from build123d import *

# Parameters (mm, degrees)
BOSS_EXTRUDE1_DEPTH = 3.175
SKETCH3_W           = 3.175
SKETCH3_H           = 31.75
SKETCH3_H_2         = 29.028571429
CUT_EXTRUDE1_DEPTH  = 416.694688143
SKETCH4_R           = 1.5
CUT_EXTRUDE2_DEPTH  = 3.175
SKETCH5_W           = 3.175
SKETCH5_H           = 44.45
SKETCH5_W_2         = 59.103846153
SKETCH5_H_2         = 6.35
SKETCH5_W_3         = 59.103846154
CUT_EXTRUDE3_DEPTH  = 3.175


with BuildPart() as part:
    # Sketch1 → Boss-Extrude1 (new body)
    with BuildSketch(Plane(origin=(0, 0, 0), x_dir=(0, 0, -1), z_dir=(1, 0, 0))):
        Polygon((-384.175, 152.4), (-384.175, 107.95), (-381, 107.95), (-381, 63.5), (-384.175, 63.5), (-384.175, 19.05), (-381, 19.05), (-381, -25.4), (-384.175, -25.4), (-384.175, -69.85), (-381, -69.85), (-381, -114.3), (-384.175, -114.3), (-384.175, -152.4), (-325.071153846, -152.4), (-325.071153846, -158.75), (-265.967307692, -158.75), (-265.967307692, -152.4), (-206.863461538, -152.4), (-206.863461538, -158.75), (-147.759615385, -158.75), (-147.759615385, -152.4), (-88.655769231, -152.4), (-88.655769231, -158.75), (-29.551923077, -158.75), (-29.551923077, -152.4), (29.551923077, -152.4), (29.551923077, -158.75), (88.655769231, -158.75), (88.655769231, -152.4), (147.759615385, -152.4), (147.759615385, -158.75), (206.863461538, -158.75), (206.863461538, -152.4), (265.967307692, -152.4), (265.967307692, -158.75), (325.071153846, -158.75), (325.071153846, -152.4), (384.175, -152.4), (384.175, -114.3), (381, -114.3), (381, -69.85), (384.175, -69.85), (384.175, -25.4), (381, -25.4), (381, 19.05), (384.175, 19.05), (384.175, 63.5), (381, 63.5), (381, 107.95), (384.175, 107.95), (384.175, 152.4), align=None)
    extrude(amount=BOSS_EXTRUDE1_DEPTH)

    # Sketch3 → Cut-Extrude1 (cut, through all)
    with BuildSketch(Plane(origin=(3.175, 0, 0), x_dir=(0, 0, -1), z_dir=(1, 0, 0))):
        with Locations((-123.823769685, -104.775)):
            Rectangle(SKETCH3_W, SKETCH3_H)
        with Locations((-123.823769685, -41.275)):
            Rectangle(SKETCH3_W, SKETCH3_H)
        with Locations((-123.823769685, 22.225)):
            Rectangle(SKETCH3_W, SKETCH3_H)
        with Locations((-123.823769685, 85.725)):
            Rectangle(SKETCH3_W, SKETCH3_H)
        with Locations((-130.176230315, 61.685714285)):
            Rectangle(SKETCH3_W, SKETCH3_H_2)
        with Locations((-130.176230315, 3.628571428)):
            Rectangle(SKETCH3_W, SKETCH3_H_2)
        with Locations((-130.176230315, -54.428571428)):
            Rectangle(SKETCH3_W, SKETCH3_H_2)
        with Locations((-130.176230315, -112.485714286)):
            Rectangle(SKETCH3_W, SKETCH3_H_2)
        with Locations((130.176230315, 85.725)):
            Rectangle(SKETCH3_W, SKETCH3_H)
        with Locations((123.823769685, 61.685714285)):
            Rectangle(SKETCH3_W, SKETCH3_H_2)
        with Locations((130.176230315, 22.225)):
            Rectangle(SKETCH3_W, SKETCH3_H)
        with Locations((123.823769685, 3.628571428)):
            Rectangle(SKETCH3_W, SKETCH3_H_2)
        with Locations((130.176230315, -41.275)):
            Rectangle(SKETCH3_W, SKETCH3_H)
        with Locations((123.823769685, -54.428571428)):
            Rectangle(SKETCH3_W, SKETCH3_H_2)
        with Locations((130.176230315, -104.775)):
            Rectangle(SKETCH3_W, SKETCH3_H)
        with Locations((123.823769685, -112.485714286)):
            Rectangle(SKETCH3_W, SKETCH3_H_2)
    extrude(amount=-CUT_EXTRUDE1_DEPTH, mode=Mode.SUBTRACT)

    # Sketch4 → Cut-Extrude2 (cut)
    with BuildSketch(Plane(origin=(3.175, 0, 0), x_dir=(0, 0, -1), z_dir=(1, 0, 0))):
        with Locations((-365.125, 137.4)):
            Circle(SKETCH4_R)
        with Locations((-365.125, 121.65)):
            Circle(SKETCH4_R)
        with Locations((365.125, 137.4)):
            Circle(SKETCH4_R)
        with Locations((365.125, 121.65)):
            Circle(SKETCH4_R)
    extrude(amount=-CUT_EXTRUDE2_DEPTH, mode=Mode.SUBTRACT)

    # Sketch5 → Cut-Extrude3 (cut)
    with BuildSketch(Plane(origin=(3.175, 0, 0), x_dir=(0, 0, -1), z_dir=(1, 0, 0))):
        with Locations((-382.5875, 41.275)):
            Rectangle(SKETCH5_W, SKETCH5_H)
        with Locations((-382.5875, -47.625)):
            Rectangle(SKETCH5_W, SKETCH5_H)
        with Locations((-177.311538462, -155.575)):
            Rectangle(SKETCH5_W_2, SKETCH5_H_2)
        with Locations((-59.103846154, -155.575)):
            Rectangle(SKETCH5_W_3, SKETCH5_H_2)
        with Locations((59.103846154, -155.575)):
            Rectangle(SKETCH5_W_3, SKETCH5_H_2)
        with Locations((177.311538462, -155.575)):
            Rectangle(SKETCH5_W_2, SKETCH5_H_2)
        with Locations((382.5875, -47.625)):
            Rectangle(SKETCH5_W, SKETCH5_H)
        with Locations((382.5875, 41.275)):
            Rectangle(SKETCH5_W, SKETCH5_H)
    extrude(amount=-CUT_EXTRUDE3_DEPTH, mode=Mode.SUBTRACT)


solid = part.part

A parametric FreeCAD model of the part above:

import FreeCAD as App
import Part
import Sketcher
from FreeCAD import Vector
Q = App.Units.Quantity

doc = App.newDocument("Part")
body = doc.addObject("PartDesign::Body", "Body")

sketch1 = doc.addObject("Sketcher::SketchObject", "Sketch")
body.addObject(sketch1)
sketch1.AttachmentSupport = (doc.YZ_Plane, [""])
sketch1.MapMode = "FlatFace"
sketch1.addGeometry([
    Part.LineSegment(Vector(152.4, 384.175, 0), Vector(107.95, 384.175, 0)),
    Part.LineSegment(Vector(107.95, 384.175, 0), Vector(107.95, 381, 0)),
    Part.LineSegment(Vector(107.95, 381, 0), Vector(63.5, 381, 0)),
    Part.LineSegment(Vector(63.5, 381, 0), Vector(63.5, 384.175, 0)),
    Part.LineSegment(Vector(63.5, 384.175, 0), Vector(19.05, 384.175, 0)),
    Part.LineSegment(Vector(19.05, 384.175, 0), Vector(19.05, 381, 0)),
    Part.LineSegment(Vector(19.05, 381, 0), Vector(-25.4, 381, 0)),
    Part.LineSegment(Vector(-25.4, 381, 0), Vector(-25.4, 384.175, 0)),
    Part.LineSegment(Vector(-25.4, 384.175, 0), Vector(-69.85, 384.175, 0)),
    Part.LineSegment(Vector(-69.85, 384.175, 0), Vector(-69.85, 381, 0)),
    Part.LineSegment(Vector(-69.85, 381, 0), Vector(-114.3, 381, 0)),
    Part.LineSegment(Vector(-114.3, 381, 0), Vector(-114.3, 384.175, 0)),
    Part.LineSegment(Vector(-114.3, 384.175, 0), Vector(-152.4, 384.175, 0)),
    Part.LineSegment(Vector(-152.4, 384.175, 0), Vector(-152.4, 325.071154, 0)),
    Part.LineSegment(Vector(-152.4, 325.071154, 0), Vector(-158.75, 325.071154, 0)),
    Part.LineSegment(Vector(-158.75, 325.071154, 0), Vector(-158.75, 265.967308, 0)),
    Part.LineSegment(Vector(-158.75, 265.967308, 0), Vector(-152.4, 265.967308, 0)),
    Part.LineSegment(Vector(-152.4, 265.967308, 0), Vector(-152.4, 206.863462, 0)),
    Part.LineSegment(Vector(-152.4, 206.863462, 0), Vector(-158.75, 206.863462, 0)),
    Part.LineSegment(Vector(-158.75, 206.863462, 0), Vector(-158.75, 147.759615, 0)),
    Part.LineSegment(Vector(-158.75, 147.759615, 0), Vector(-152.4, 147.759615, 0)),
    Part.LineSegment(Vector(-152.4, 147.759615, 0), Vector(-152.4, 88.655769, 0)),
    Part.LineSegment(Vector(-152.4, 88.655769, 0), Vector(-158.75, 88.655769, 0)),
    Part.LineSegment(Vector(-158.75, 88.655769, 0), Vector(-158.75, 29.551923, 0)),
    Part.LineSegment(Vector(-158.75, 29.551923, 0), Vector(-152.4, 29.551923, 0)),
    Part.LineSegment(Vector(-152.4, 29.551923, 0), Vector(-152.4, -29.551923, 0)),
    Part.LineSegment(Vector(-152.4, -29.551923, 0), Vector(-158.75, -29.551923, 0)),
    Part.LineSegment(Vector(-158.75, -29.551923, 0), Vector(-158.75, -88.655769, 0)),
    Part.LineSegment(Vector(-158.75, -88.655769, 0), Vector(-152.4, -88.655769, 0)),
    Part.LineSegment(Vector(-152.4, -88.655769, 0), Vector(-152.4, -147.759615, 0)),
    Part.LineSegment(Vector(-152.4, -147.759615, 0), Vector(-158.75, -147.759615, 0)),
    Part.LineSegment(Vector(-158.75, -147.759615, 0), Vector(-158.75, -206.863462, 0)),
    Part.LineSegment(Vector(-158.75, -206.863462, 0), Vector(-152.4, -206.863462, 0)),
    Part.LineSegment(Vector(-152.4, -206.863462, 0), Vector(-152.4, -265.967308, 0)),
    Part.LineSegment(Vector(-152.4, -265.967308, 0), Vector(-158.75, -265.967308, 0)),
    Part.LineSegment(Vector(-158.75, -265.967308, 0), Vector(-158.75, -325.071154, 0)),
    Part.LineSegment(Vector(-158.75, -325.071154, 0), Vector(-152.4, -325.071154, 0)),
    Part.LineSegment(Vector(-152.4, -325.071154, 0), Vector(-152.4, -384.175, 0)),
    Part.LineSegment(Vector(-152.4, -384.175, 0), Vector(-114.3, -384.175, 0)),
    Part.LineSegment(Vector(-114.3, -384.175, 0), Vector(-114.3, -381, 0)),
    Part.LineSegment(Vector(-114.3, -381, 0), Vector(-69.85, -381, 0)),
    Part.LineSegment(Vector(-69.85, -381, 0), Vector(-69.85, -384.175, 0)),
    Part.LineSegment(Vector(-69.85, -384.175, 0), Vector(-25.4, -384.175, 0)),
    Part.LineSegment(Vector(-25.4, -384.175, 0), Vector(-25.4, -381, 0)),
    Part.LineSegment(Vector(-25.4, -381, 0), Vector(19.05, -381, 0)),
    Part.LineSegment(Vector(19.05, -381, 0), Vector(19.05, -384.175, 0)),
    Part.LineSegment(Vector(19.05, -384.175, 0), Vector(63.5, -384.175, 0)),
    Part.LineSegment(Vector(63.5, -384.175, 0), Vector(63.5, -381, 0)),
    Part.LineSegment(Vector(63.5, -381, 0), Vector(107.95, -381, 0)),
    Part.LineSegment(Vector(107.95, -381, 0), Vector(107.95, -384.175, 0)),
    Part.LineSegment(Vector(107.95, -384.175, 0), Vector(152.4, -384.175, 0)),
    Part.LineSegment(Vector(152.4, -384.175, 0), Vector(152.4, 384.175, 0)),
], False)
sketch1.addConstraint([
    Sketcher.Constraint("Coincident", 0, 2, 1, 1),
    Sketcher.Constraint("Coincident", 1, 2, 2, 1),
    Sketcher.Constraint("Coincident", 2, 2, 3, 1),
    Sketcher.Constraint("Coincident", 3, 2, 4, 1),
    Sketcher.Constraint("Coincident", 4, 2, 5, 1),
    Sketcher.Constraint("Coincident", 5, 2, 6, 1),
    Sketcher.Constraint("Coincident", 6, 2, 7, 1),
    Sketcher.Constraint("Coincident", 7, 2, 8, 1),
    Sketcher.Constraint("Coincident", 8, 2, 9, 1),
    Sketcher.Constraint("Coincident", 9, 2, 10, 1),
    Sketcher.Constraint("Coincident", 10, 2, 11, 1),
    Sketcher.Constraint("Coincident", 11, 2, 12, 1),
    Sketcher.Constraint("Coincident", 12, 2, 13, 1),
    Sketcher.Constraint("Coincident", 13, 2, 14, 1),
    Sketcher.Constraint("Coincident", 14, 2, 15, 1),
    Sketcher.Constraint("Coincident", 15, 2, 16, 1),
    Sketcher.Constraint("Coincident", 16, 2, 17, 1),
    Sketcher.Constraint("Coincident", 17, 2, 18, 1),
    Sketcher.Constraint("Coincident", 18, 2, 19, 1),
    Sketcher.Constraint("Coincident", 19, 2, 20, 1),
    Sketcher.Constraint("Coincident", 20, 2, 21, 1),
    Sketcher.Constraint("Coincident", 21, 2, 22, 1),
    Sketcher.Constraint("Coincident", 22, 2, 23, 1),
    Sketcher.Constraint("Coincident", 23, 2, 24, 1),
    Sketcher.Constraint("Coincident", 24, 2, 25, 1),
    Sketcher.Constraint("Coincident", 25, 2, 26, 1),
    Sketcher.Constraint("Coincident", 26, 2, 27, 1),
    Sketcher.Constraint("Coincident", 27, 2, 28, 1),
    Sketcher.Constraint("Coincident", 28, 2, 29, 1),
    Sketcher.Constraint("Coincident", 29, 2, 30, 1),
    Sketcher.Constraint("Coincident", 30, 2, 31, 1),
    Sketcher.Constraint("Coincident", 31, 2, 32, 1),
    Sketcher.Constraint("Coincident", 32, 2, 33, 1),
    Sketcher.Constraint("Coincident", 33, 2, 34, 1),
    Sketcher.Constraint("Coincident", 34, 2, 35, 1),
    Sketcher.Constraint("Coincident", 35, 2, 36, 1),
    Sketcher.Constraint("Coincident", 36, 2, 37, 1),
    Sketcher.Constraint("Coincident", 37, 2, 38, 1),
    Sketcher.Constraint("Coincident", 38, 2, 39, 1),
    Sketcher.Constraint("Coincident", 39, 2, 40, 1),
    Sketcher.Constraint("Coincident", 40, 2, 41, 1),
    Sketcher.Constraint("Coincident", 41, 2, 42, 1),
    Sketcher.Constraint("Coincident", 42, 2, 43, 1),
    Sketcher.Constraint("Coincident", 43, 2, 44, 1),
    Sketcher.Constraint("Coincident", 44, 2, 45, 1),
    Sketcher.Constraint("Coincident", 45, 2, 46, 1),
    Sketcher.Constraint("Coincident", 46, 2, 47, 1),
    Sketcher.Constraint("Coincident", 47, 2, 48, 1),
    Sketcher.Constraint("Coincident", 48, 2, 49, 1),
    Sketcher.Constraint("Coincident", 49, 2, 50, 1),
    Sketcher.Constraint("Coincident", 50, 2, 51, 1),
    Sketcher.Constraint("Coincident", 51, 2, 0, 1),
    Sketcher.Constraint("Horizontal", 0),
    Sketcher.Constraint("Vertical", 1),
    Sketcher.Constraint("Horizontal", 2),
    Sketcher.Constraint("Vertical", 3),
    Sketcher.Constraint("Horizontal", 4),
    Sketcher.Constraint("Vertical", 5),
    Sketcher.Constraint("Horizontal", 6),
    Sketcher.Constraint("Vertical", 7),
    Sketcher.Constraint("Horizontal", 8),
    Sketcher.Constraint("Vertical", 9),
    Sketcher.Constraint("Horizontal", 10),
    Sketcher.Constraint("Vertical", 11),
    Sketcher.Constraint("Horizontal", 12),
    Sketcher.Constraint("Vertical", 13),
    Sketcher.Constraint("Horizontal", 14),
    Sketcher.Constraint("Vertical", 15),
    Sketcher.Constraint("Horizontal", 16),
    Sketcher.Constraint("Vertical", 17),
    Sketcher.Constraint("Horizontal", 18),
    Sketcher.Constraint("Vertical", 19),
    Sketcher.Constraint("Horizontal", 20),
    Sketcher.Constraint("Vertical", 21),
    Sketcher.Constraint("Horizontal", 22),
    Sketcher.Constraint("Vertical", 23),
    Sketcher.Constraint("Horizontal", 24),
    Sketcher.Constraint("Vertical", 25),
    Sketcher.Constraint("Horizontal", 26),
    Sketcher.Constraint("Vertical", 27),
    Sketcher.Constraint("Horizontal", 28),
    Sketcher.Constraint("Vertical", 29),
    Sketcher.Constraint("Horizontal", 30),
    Sketcher.Constraint("Vertical", 31),
    Sketcher.Constraint("Horizontal", 32),
    Sketcher.Constraint("Vertical", 33),
    Sketcher.Constraint("Horizontal", 34),
    Sketcher.Constraint("Vertical", 35),
    Sketcher.Constraint("Horizontal", 36),
    Sketcher.Constraint("Vertical", 37),
    Sketcher.Constraint("Horizontal", 38),
    Sketcher.Constraint("Vertical", 39),
    Sketcher.Constraint("Horizontal", 40),
    Sketcher.Constraint("Vertical", 41),
    Sketcher.Constraint("Horizontal", 42),
    Sketcher.Constraint("Vertical", 43),
    Sketcher.Constraint("Horizontal", 44),
    Sketcher.Constraint("Vertical", 45),
    Sketcher.Constraint("Horizontal", 46),
    Sketcher.Constraint("Vertical", 47),
    Sketcher.Constraint("Horizontal", 48),
    Sketcher.Constraint("Vertical", 49),
    Sketcher.Constraint("Horizontal", 50),
    Sketcher.Constraint("Vertical", 51),
    Sketcher.Constraint("Symmetric", 12, 2, 50, 2, -1, 1),
    Sketcher.Constraint("Symmetric", 37, 2, 51, 2, -1, 1),
    Sketcher.Constraint("Symmetric", 23, 2, 26, 2, -1),
    Sketcher.Constraint("Symmetric", 21, 2, 28, 2, -1),
    Sketcher.Constraint("Symmetric", 19, 2, 30, 2, -1),
    Sketcher.Constraint("Symmetric", 17, 2, 32, 2, -1),
    Sketcher.Constraint("Symmetric", 15, 2, 34, 2, -1),
    Sketcher.Constraint("Symmetric", 11, 2, 38, 2, -1),
    Sketcher.Constraint("Symmetric", 9, 2, 40, 2, -1),
    Sketcher.Constraint("Symmetric", 7, 2, 42, 2, -1),
    Sketcher.Constraint("Symmetric", 5, 2, 44, 2, -1),
    Sketcher.Constraint("Symmetric", 3, 2, 46, 2, -1),
    Sketcher.Constraint("Symmetric", 1, 2, 48, 2, -1),
    Sketcher.Constraint("Horizontal", 0, 2, 3, 2),
    Sketcher.Constraint("Horizontal", 2, 2, 5, 2),
    Sketcher.Constraint("Horizontal", 4, 2, 7, 2),
    Sketcher.Constraint("Horizontal", 6, 2, 9, 2),
    Sketcher.Constraint("Vertical", 13, 2, 16, 2),
    Sketcher.Constraint("Vertical", 15, 2, 18, 2),
    Sketcher.Constraint("Vertical", 17, 2, 20, 2),
    Sketcher.Constraint("Vertical", 19, 2, 22, 2),
    Sketcher.Constraint("Vertical", 21, 2, 24, 2),
    Sketcher.Constraint("Equal", 0, 2),
    Sketcher.Constraint("Equal", 2, 4),
    Sketcher.Constraint("Equal", 4, 6),
    Sketcher.Constraint("Equal", 6, 8),
    Sketcher.Constraint("Equal", 8, 10),
    Sketcher.Constraint("Equal", 13, 15),
    Sketcher.Constraint("Equal", 15, 17),
    Sketcher.Constraint("Equal", 17, 19),
    Sketcher.Constraint("Equal", 19, 21),
    Sketcher.Constraint("Equal", 21, 23),
    Sketcher.Constraint("Equal", 23, 25),
    Sketcher.Constraint("Equal", 33, 35),
    Sketcher.Constraint("DistanceX", 12, 2, 12, 1, Q("1.5 in")),
    Sketcher.Constraint("DistanceY", -1, 1, 1, 2, Q("15 in")),
    Sketcher.Constraint("DistanceX", 6, 2, -1, 1, Q("1 in")),
    Sketcher.Constraint("DistanceX", 14, 2, 14, 1, Q("0.25 in")),
    Sketcher.Constraint("DistanceY", 51, 1, 51, 2, Q("30.25 in")),
])
pad1 = doc.addObject("PartDesign::Pad", "Pad")
body.addObject(pad1)
pad1.Profile = sketch1
pad1.Length = Q("0.125 in")

sketch2 = doc.addObject("Sketcher::SketchObject", "Sketch001")
body.addObject(sketch2)
sketch2.AttachmentSupport = (doc.YZ_Plane, [""])
sketch2.MapMode = "FlatFace"
sketch2.AttachmentOffset = App.Placement(Vector(0, 0, 0.125 * 25.4), App.Rotation())
sketch2.addGeometry([
    Part.LineSegment(Vector(-88.9, 125.41127, 0), Vector(-120.65, 125.41127, 0)),
    Part.LineSegment(Vector(-120.65, 125.41127, 0), Vector(-120.65, 122.23627, 0)),
    Part.LineSegment(Vector(-120.65, 122.23627, 0), Vector(-88.9, 122.23627, 0)),
    Part.LineSegment(Vector(-88.9, 122.23627, 0), Vector(-88.9, 125.41127, 0)),
    Part.LineSegment(Vector(-25.4, 125.41127, 0), Vector(-57.15, 125.41127, 0)),
    Part.LineSegment(Vector(-57.15, 125.41127, 0), Vector(-57.15, 122.23627, 0)),
    Part.LineSegment(Vector(-57.15, 122.23627, 0), Vector(-25.4, 122.23627, 0)),
    Part.LineSegment(Vector(-25.4, 122.23627, 0), Vector(-25.4, 125.41127, 0)),
    Part.LineSegment(Vector(38.1, 125.41127, 0), Vector(6.35, 125.41127, 0)),
    Part.LineSegment(Vector(6.35, 125.41127, 0), Vector(6.35, 122.23627, 0)),
    Part.LineSegment(Vector(6.35, 122.23627, 0), Vector(38.1, 122.23627, 0)),
    Part.LineSegment(Vector(38.1, 122.23627, 0), Vector(38.1, 125.41127, 0)),
    Part.LineSegment(Vector(101.6, 125.41127, 0), Vector(69.85, 125.41127, 0)),
    Part.LineSegment(Vector(69.85, 125.41127, 0), Vector(69.85, 122.23627, 0)),
    Part.LineSegment(Vector(69.85, 122.23627, 0), Vector(101.6, 122.23627, 0)),
    Part.LineSegment(Vector(101.6, 122.23627, 0), Vector(101.6, 125.41127, 0)),
    Part.LineSegment(Vector(76.2, 131.76373, 0), Vector(47.171429, 131.76373, 0)),
    Part.LineSegment(Vector(47.171429, 131.76373, 0), Vector(47.171429, 128.58873, 0)),
    Part.LineSegment(Vector(47.171429, 128.58873, 0), Vector(76.2, 128.58873, 0)),
    Part.LineSegment(Vector(76.2, 128.58873, 0), Vector(76.2, 131.76373, 0)),
    Part.LineSegment(Vector(18.142857, 131.76373, 0), Vector(-10.885714, 131.76373, 0)),
    Part.LineSegment(Vector(-10.885714, 131.76373, 0), Vector(-10.885714, 128.58873, 0)),
    Part.LineSegment(Vector(-10.885714, 128.58873, 0), Vector(18.142857, 128.58873, 0)),
    Part.LineSegment(Vector(18.142857, 128.58873, 0), Vector(18.142857, 131.76373, 0)),
    Part.LineSegment(Vector(-39.914286, 131.76373, 0), Vector(-68.942857, 131.76373, 0)),
    Part.LineSegment(Vector(-68.942857, 131.76373, 0), Vector(-68.942857, 128.58873, 0)),
    Part.LineSegment(Vector(-68.942857, 128.58873, 0), Vector(-39.914286, 128.58873, 0)),
    Part.LineSegment(Vector(-39.914286, 128.58873, 0), Vector(-39.914286, 131.76373, 0)),
    Part.LineSegment(Vector(-97.971429, 131.76373, 0), Vector(-127, 131.76373, 0)),
    Part.LineSegment(Vector(-127, 131.76373, 0), Vector(-127, 128.58873, 0)),
    Part.LineSegment(Vector(-127, 128.58873, 0), Vector(-97.971429, 128.58873, 0)),
    Part.LineSegment(Vector(-97.971429, 128.58873, 0), Vector(-97.971429, 131.76373, 0)),
    Part.LineSegment(Vector(101.6, -128.58873, 0), Vector(69.85, -128.58873, 0)),
    Part.LineSegment(Vector(69.85, -128.58873, 0), Vector(69.85, -131.76373, 0)),
    Part.LineSegment(Vector(69.85, -131.76373, 0), Vector(101.6, -131.76373, 0)),
    Part.LineSegment(Vector(101.6, -131.76373, 0), Vector(101.6, -128.58873, 0)),
    Part.LineSegment(Vector(76.2, -122.23627, 0), Vector(47.171429, -122.23627, 0)),
    Part.LineSegment(Vector(47.171429, -122.23627, 0), Vector(47.171429, -125.41127, 0)),
    Part.LineSegment(Vector(47.171429, -125.41127, 0), Vector(76.2, -125.41127, 0)),
    Part.LineSegment(Vector(76.2, -125.41127, 0), Vector(76.2, -122.23627, 0)),
    Part.LineSegment(Vector(38.1, -128.58873, 0), Vector(6.35, -128.58873, 0)),
    Part.LineSegment(Vector(6.35, -128.58873, 0), Vector(6.35, -131.76373, 0)),
    Part.LineSegment(Vector(6.35, -131.76373, 0), Vector(38.1, -131.76373, 0)),
    Part.LineSegment(Vector(38.1, -131.76373, 0), Vector(38.1, -128.58873, 0)),
    Part.LineSegment(Vector(18.142857, -122.23627, 0), Vector(-10.885714, -122.23627, 0)),
    Part.LineSegment(Vector(-10.885714, -122.23627, 0), Vector(-10.885714, -125.41127, 0)),
    Part.LineSegment(Vector(-10.885714, -125.41127, 0), Vector(18.142857, -125.41127, 0)),
    Part.LineSegment(Vector(18.142857, -125.41127, 0), Vector(18.142857, -122.23627, 0)),
    Part.LineSegment(Vector(-25.4, -128.58873, 0), Vector(-57.15, -128.58873, 0)),
    Part.LineSegment(Vector(-57.15, -128.58873, 0), Vector(-57.15, -131.76373, 0)),
    Part.LineSegment(Vector(-57.15, -131.76373, 0), Vector(-25.4, -131.76373, 0)),
    Part.LineSegment(Vector(-25.4, -131.76373, 0), Vector(-25.4, -128.58873, 0)),
    Part.LineSegment(Vector(-39.914286, -122.23627, 0), Vector(-68.942857, -122.23627, 0)),
    Part.LineSegment(Vector(-68.942857, -122.23627, 0), Vector(-68.942857, -125.41127, 0)),
    Part.LineSegment(Vector(-68.942857, -125.41127, 0), Vector(-39.914286, -125.41127, 0)),
    Part.LineSegment(Vector(-39.914286, -125.41127, 0), Vector(-39.914286, -122.23627, 0)),
    Part.LineSegment(Vector(-88.9, -128.58873, 0), Vector(-120.65, -128.58873, 0)),
    Part.LineSegment(Vector(-120.65, -128.58873, 0), Vector(-120.65, -131.76373, 0)),
    Part.LineSegment(Vector(-120.65, -131.76373, 0), Vector(-88.9, -131.76373, 0)),
    Part.LineSegment(Vector(-88.9, -131.76373, 0), Vector(-88.9, -128.58873, 0)),
    Part.LineSegment(Vector(-97.971429, -122.23627, 0), Vector(-127, -122.23627, 0)),
    Part.LineSegment(Vector(-127, -122.23627, 0), Vector(-127, -125.41127, 0)),
    Part.LineSegment(Vector(-127, -125.41127, 0), Vector(-97.971429, -125.41127, 0)),
    Part.LineSegment(Vector(-97.971429, -125.41127, 0), Vector(-97.971429, -122.23627, 0)),
], False)
sketch2.addConstraint([
    Sketcher.Constraint("Coincident", 0, 2, 1, 1),
    Sketcher.Constraint("Coincident", 1, 2, 2, 1),
    Sketcher.Constraint("Coincident", 2, 2, 3, 1),
    Sketcher.Constraint("Coincident", 3, 2, 0, 1),
    Sketcher.Constraint("Coincident", 4, 2, 5, 1),
    Sketcher.Constraint("Coincident", 5, 2, 6, 1),
    Sketcher.Constraint("Coincident", 6, 2, 7, 1),
    Sketcher.Constraint("Coincident", 7, 2, 4, 1),
    Sketcher.Constraint("Coincident", 8, 2, 9, 1),
    Sketcher.Constraint("Coincident", 9, 2, 10, 1),
    Sketcher.Constraint("Coincident", 10, 2, 11, 1),
    Sketcher.Constraint("Coincident", 11, 2, 8, 1),
    Sketcher.Constraint("Coincident", 12, 2, 13, 1),
    Sketcher.Constraint("Coincident", 13, 2, 14, 1),
    Sketcher.Constraint("Coincident", 14, 2, 15, 1),
    Sketcher.Constraint("Coincident", 15, 2, 12, 1),
    Sketcher.Constraint("Coincident", 16, 2, 17, 1),
    Sketcher.Constraint("Coincident", 17, 2, 18, 1),
    Sketcher.Constraint("Coincident", 18, 2, 19, 1),
    Sketcher.Constraint("Coincident", 19, 2, 16, 1),
    Sketcher.Constraint("Coincident", 20, 2, 21, 1),
    Sketcher.Constraint("Coincident", 21, 2, 22, 1),
    Sketcher.Constraint("Coincident", 22, 2, 23, 1),
    Sketcher.Constraint("Coincident", 23, 2, 20, 1),
    Sketcher.Constraint("Coincident", 24, 2, 25, 1),
    Sketcher.Constraint("Coincident", 25, 2, 26, 1),
    Sketcher.Constraint("Coincident", 26, 2, 27, 1),
    Sketcher.Constraint("Coincident", 27, 2, 24, 1),
    Sketcher.Constraint("Coincident", 28, 2, 29, 1),
    Sketcher.Constraint("Coincident", 29, 2, 30, 1),
    Sketcher.Constraint("Coincident", 30, 2, 31, 1),
    Sketcher.Constraint("Coincident", 31, 2, 28, 1),
    Sketcher.Constraint("Coincident", 32, 2, 33, 1),
    Sketcher.Constraint("Coincident", 33, 2, 34, 1),
    Sketcher.Constraint("Coincident", 34, 2, 35, 1),
    Sketcher.Constraint("Coincident", 35, 2, 32, 1),
    Sketcher.Constraint("Coincident", 36, 2, 37, 1),
    Sketcher.Constraint("Coincident", 37, 2, 38, 1),
    Sketcher.Constraint("Coincident", 38, 2, 39, 1),
    Sketcher.Constraint("Coincident", 39, 2, 36, 1),
    Sketcher.Constraint("Coincident", 40, 2, 41, 1),
    Sketcher.Constraint("Coincident", 41, 2, 42, 1),
    Sketcher.Constraint("Coincident", 42, 2, 43, 1),
    Sketcher.Constraint("Coincident", 43, 2, 40, 1),
    Sketcher.Constraint("Coincident", 44, 2, 45, 1),
    Sketcher.Constraint("Coincident", 45, 2, 46, 1),
    Sketcher.Constraint("Coincident", 46, 2, 47, 1),
    Sketcher.Constraint("Coincident", 47, 2, 44, 1),
    Sketcher.Constraint("Coincident", 48, 2, 49, 1),
    Sketcher.Constraint("Coincident", 49, 2, 50, 1),
    Sketcher.Constraint("Coincident", 50, 2, 51, 1),
    Sketcher.Constraint("Coincident", 51, 2, 48, 1),
    Sketcher.Constraint("Coincident", 52, 2, 53, 1),
    Sketcher.Constraint("Coincident", 53, 2, 54, 1),
    Sketcher.Constraint("Coincident", 54, 2, 55, 1),
    Sketcher.Constraint("Coincident", 55, 2, 52, 1),
    Sketcher.Constraint("Coincident", 56, 2, 57, 1),
    Sketcher.Constraint("Coincident", 57, 2, 58, 1),
    Sketcher.Constraint("Coincident", 58, 2, 59, 1),
    Sketcher.Constraint("Coincident", 59, 2, 56, 1),
    Sketcher.Constraint("Coincident", 60, 2, 61, 1),
    Sketcher.Constraint("Coincident", 61, 2, 62, 1),
    Sketcher.Constraint("Coincident", 62, 2, 63, 1),
    Sketcher.Constraint("Coincident", 63, 2, 60, 1),
    Sketcher.Constraint("Horizontal", 0),
    Sketcher.Constraint("Vertical", 1),
    Sketcher.Constraint("Horizontal", 2),
    Sketcher.Constraint("Vertical", 3),
    Sketcher.Constraint("Horizontal", 4),
    Sketcher.Constraint("Vertical", 5),
    Sketcher.Constraint("Horizontal", 6),
    Sketcher.Constraint("Vertical", 7),
    Sketcher.Constraint("Horizontal", 8),
    Sketcher.Constraint("Vertical", 9),
    Sketcher.Constraint("Horizontal", 10),
    Sketcher.Constraint("Vertical", 11),
    Sketcher.Constraint("Horizontal", 12),
    Sketcher.Constraint("Vertical", 13),
    Sketcher.Constraint("Horizontal", 14),
    Sketcher.Constraint("Vertical", 15),
    Sketcher.Constraint("Horizontal", 16),
    Sketcher.Constraint("Vertical", 17),
    Sketcher.Constraint("Horizontal", 18),
    Sketcher.Constraint("Vertical", 19),
    Sketcher.Constraint("Horizontal", 20),
    Sketcher.Constraint("Vertical", 21),
    Sketcher.Constraint("Horizontal", 22),
    Sketcher.Constraint("Vertical", 23),
    Sketcher.Constraint("Horizontal", 24),
    Sketcher.Constraint("Vertical", 25),
    Sketcher.Constraint("Horizontal", 26),
    Sketcher.Constraint("Vertical", 27),
    Sketcher.Constraint("Horizontal", 28),
    Sketcher.Constraint("Vertical", 29),
    Sketcher.Constraint("Horizontal", 30),
    Sketcher.Constraint("Vertical", 31),
    Sketcher.Constraint("Horizontal", 32),
    Sketcher.Constraint("Vertical", 33),
    Sketcher.Constraint("Horizontal", 34),
    Sketcher.Constraint("Vertical", 35),
    Sketcher.Constraint("Horizontal", 36),
    Sketcher.Constraint("Vertical", 37),
    Sketcher.Constraint("Horizontal", 38),
    Sketcher.Constraint("Vertical", 39),
    Sketcher.Constraint("Horizontal", 40),
    Sketcher.Constraint("Vertical", 41),
    Sketcher.Constraint("Horizontal", 42),
    Sketcher.Constraint("Vertical", 43),
    Sketcher.Constraint("Horizontal", 44),
    Sketcher.Constraint("Vertical", 45),
    Sketcher.Constraint("Horizontal", 46),
    Sketcher.Constraint("Vertical", 47),
    Sketcher.Constraint("Horizontal", 48),
    Sketcher.Constraint("Vertical", 49),
    Sketcher.Constraint("Horizontal", 50),
    Sketcher.Constraint("Vertical", 51),
    Sketcher.Constraint("Horizontal", 52),
    Sketcher.Constraint("Vertical", 53),
    Sketcher.Constraint("Horizontal", 54),
    Sketcher.Constraint("Vertical", 55),
    Sketcher.Constraint("Horizontal", 56),
    Sketcher.Constraint("Vertical", 57),
    Sketcher.Constraint("Horizontal", 58),
    Sketcher.Constraint("Vertical", 59),
    Sketcher.Constraint("Horizontal", 60),
    Sketcher.Constraint("Vertical", 61),
    Sketcher.Constraint("Horizontal", 62),
    Sketcher.Constraint("Vertical", 63),
    Sketcher.Constraint("Horizontal", 3, 2, 4, 2),
    Sketcher.Constraint("Horizontal", 2, 2, 5, 2),
    Sketcher.Constraint("Horizontal", 7, 2, 8, 2),
    Sketcher.Constraint("Horizontal", 6, 2, 9, 2),
    Sketcher.Constraint("Horizontal", 11, 2, 12, 2),
    Sketcher.Constraint("Horizontal", 10, 2, 13, 2),
    Sketcher.Constraint("Horizontal", 19, 2, 20, 2),
    Sketcher.Constraint("Horizontal", 18, 2, 21, 2),
    Sketcher.Constraint("Horizontal", 23, 2, 24, 2),
    Sketcher.Constraint("Horizontal", 22, 2, 25, 2),
    Sketcher.Constraint("Horizontal", 27, 2, 28, 2),
    Sketcher.Constraint("Horizontal", 26, 2, 29, 2),
    Sketcher.Constraint("Horizontal", 35, 2, 40, 2),
    Sketcher.Constraint("Horizontal", 34, 2, 41, 2),
    Sketcher.Constraint("Horizontal", 39, 2, 44, 2),
    Sketcher.Constraint("Horizontal", 38, 2, 45, 2),
    Sketcher.Constraint("Horizontal", 43, 2, 48, 2),
    Sketcher.Constraint("Horizontal", 42, 2, 49, 2),
    Sketcher.Constraint("Horizontal", 47, 2, 52, 2),
    Sketcher.Constraint("Horizontal", 46, 2, 53, 2),
    Sketcher.Constraint("Horizontal", 51, 2, 56, 2),
    Sketcher.Constraint("Horizontal", 50, 2, 57, 2),
    Sketcher.Constraint("Horizontal", 55, 2, 60, 2),
    Sketcher.Constraint("Horizontal", 54, 2, 61, 2),
    Sketcher.Constraint("Vertical", 13, 2, 32, 2),
    Sketcher.Constraint("Vertical", 15, 2, 34, 2),
    Sketcher.Constraint("Vertical", 17, 2, 36, 2),
    Sketcher.Constraint("Vertical", 19, 2, 38, 2),
    Sketcher.Constraint("Vertical", 9, 2, 40, 2),
    Sketcher.Constraint("Vertical", 11, 2, 42, 2),
    Sketcher.Constraint("Vertical", 21, 2, 44, 2),
    Sketcher.Constraint("Vertical", 23, 2, 46, 2),
    Sketcher.Constraint("Vertical", 5, 2, 48, 2),
    Sketcher.Constraint("Vertical", 7, 2, 50, 2),
    Sketcher.Constraint("Vertical", 25, 2, 52, 2),
    Sketcher.Constraint("Vertical", 27, 2, 54, 2),
    Sketcher.Constraint("Vertical", 1, 2, 56, 2),
    Sketcher.Constraint("Vertical", 3, 2, 58, 2),
    Sketcher.Constraint("Vertical", 29, 2, 60, 2),
    Sketcher.Constraint("Vertical", 31, 2, 62, 2),
    Sketcher.Constraint("Equal", 2, 4),
    Sketcher.Constraint("Equal", 6, 8),
    Sketcher.Constraint("Equal", 10, 12),
    Sketcher.Constraint("Equal", 18, 20),
    Sketcher.Constraint("Equal", 22, 24),
    Sketcher.Constraint("Equal", 26, 28),
    Sketcher.Constraint("Equal", 15, 17),
    Sketcher.Constraint("Equal", 31, 33),
    Sketcher.Constraint("Equal", 35, 37),
    Sketcher.Constraint("DistanceX", 6, 2, -1, 1, Q("1 in")),
    Sketcher.Constraint("DistanceX", -1, 1, 14, 2, Q("4 in")),
    Sketcher.Constraint("DistanceX", -1, 1, 18, 2, Q("3 in")),
    Sketcher.Constraint("DistanceX", 28, 2, -1, 1, Q("5 in")),
    Sketcher.Constraint("DistanceX", 0, 2, 0, 1, Q("1.25 in")),
    Sketcher.Constraint("DistanceX", 2, 2, -1, 1, Q("3.5 in")),
    Sketcher.Constraint("DistanceX", -1, 1, 10, 2, Q("1.5 in")),
    Sketcher.Constraint("DistanceY", 1, 2, 1, 1, Q("0.125 in")),
    Sketcher.Constraint("DistanceX", 16, 2, 16, 1, Q("29.028571 mm")),
    Sketcher.Constraint("DistanceY", -1, 1, 0, 2, Q("125.41127 mm")),
    Sketcher.Constraint("DistanceY", -1, 1, 16, 2, Q("131.76373 mm")),
    Sketcher.Constraint("DistanceY", 32, 2, -1, 1, Q("128.58873 mm")),
    Sketcher.Constraint("DistanceY", 36, 2, -1, 1, Q("122.23627 mm")),
    Sketcher.Constraint("DistanceX", 20, 2, -1, 1, Q("10.885714 mm")),
    Sketcher.Constraint("DistanceX", 24, 2, -1, 1, Q("68.942857 mm")),
])
pocket1 = doc.addObject("PartDesign::Pocket", "Pocket")
body.addObject(pocket1)
pocket1.Profile = sketch2
pocket1.Type = "ThroughAll"

sketch3 = doc.addObject("Sketcher::SketchObject", "Sketch002")
body.addObject(sketch3)
sketch3.AttachmentSupport = (doc.YZ_Plane, [""])
sketch3.MapMode = "FlatFace"
sketch3.AttachmentOffset = App.Placement(Vector(0, 0, 0.125 * 25.4), App.Rotation())
sketch3.addGeometry([
    Part.Circle(Vector(137.4, 365.125, 0), Vector(0, 0, 1), 1.5),
    Part.Circle(Vector(121.65, 365.125, 0), Vector(0, 0, 1), 1.5),
    Part.Circle(Vector(137.4, -365.125, 0), Vector(0, 0, 1), 1.5),
    Part.Circle(Vector(121.65, -365.125, 0), Vector(0, 0, 1), 1.5),
], False)
sketch3.addConstraint([
    Sketcher.Constraint("Equal", 0, 1),
    Sketcher.Constraint("Equal", 1, 2),
    Sketcher.Constraint("Equal", 2, 3),
    Sketcher.Constraint("Symmetric", 0, 3, 2, 3, -1),
    Sketcher.Constraint("Symmetric", 1, 3, 3, 3, -1),
    Sketcher.Constraint("Horizontal", 0, 3, 1, 3),
    Sketcher.Constraint("Diameter", 0, Q("3 mm")),
    Sketcher.Constraint("DistanceY", 2, 3, 0, 3, Q("28.75 in")),
    Sketcher.Constraint("DistanceX", -1, 1, 0, 3, Q("137.4 mm")),
    Sketcher.Constraint("DistanceX", -1, 1, 1, 3, Q("121.65 mm")),
])
pocket2 = doc.addObject("PartDesign::Pocket", "Pocket001")
body.addObject(pocket2)
pocket2.Profile = sketch3
pocket2.Length = Q("0.125 in")

sketch4 = doc.addObject("Sketcher::SketchObject", "Sketch003")
body.addObject(sketch4)
sketch4.AttachmentSupport = (doc.YZ_Plane, [""])
sketch4.MapMode = "FlatFace"
sketch4.AttachmentOffset = App.Placement(Vector(0, 0, 0.125 * 25.4), App.Rotation())
sketch4.addGeometry([
    Part.LineSegment(Vector(63.5, 384.175, 0), Vector(19.05, 384.175, 0)),
    Part.LineSegment(Vector(19.05, 384.175, 0), Vector(19.05, 381, 0)),
    Part.LineSegment(Vector(19.05, 381, 0), Vector(63.5, 381, 0)),
    Part.LineSegment(Vector(63.5, 381, 0), Vector(63.5, 384.175, 0)),
    Part.LineSegment(Vector(-25.4, 384.175, 0), Vector(-69.85, 384.175, 0)),
    Part.LineSegment(Vector(-69.85, 384.175, 0), Vector(-69.85, 381, 0)),
    Part.LineSegment(Vector(-69.85, 381, 0), Vector(-25.4, 381, 0)),
    Part.LineSegment(Vector(-25.4, 381, 0), Vector(-25.4, 384.175, 0)),
    Part.LineSegment(Vector(-152.4, 206.863462, 0), Vector(-158.75, 206.863462, 0)),
    Part.LineSegment(Vector(-158.75, 206.863462, 0), Vector(-158.75, 147.759615, 0)),
    Part.LineSegment(Vector(-158.75, 147.759615, 0), Vector(-152.4, 147.759615, 0)),
    Part.LineSegment(Vector(-152.4, 147.759615, 0), Vector(-152.4, 206.863462, 0)),
    Part.LineSegment(Vector(-152.4, 88.655769, 0), Vector(-158.75, 88.655769, 0)),
    Part.LineSegment(Vector(-158.75, 88.655769, 0), Vector(-158.75, 29.551923, 0)),
    Part.LineSegment(Vector(-158.75, 29.551923, 0), Vector(-152.4, 29.551923, 0)),
    Part.LineSegment(Vector(-152.4, 29.551923, 0), Vector(-152.4, 88.655769, 0)),
    Part.LineSegment(Vector(-152.4, -29.551923, 0), Vector(-158.75, -29.551923, 0)),
    Part.LineSegment(Vector(-158.75, -29.551923, 0), Vector(-158.75, -88.655769, 0)),
    Part.LineSegment(Vector(-158.75, -88.655769, 0), Vector(-152.4, -88.655769, 0)),
    Part.LineSegment(Vector(-152.4, -88.655769, 0), Vector(-152.4, -29.551923, 0)),
    Part.LineSegment(Vector(-152.4, -147.759615, 0), Vector(-158.75, -147.759615, 0)),
    Part.LineSegment(Vector(-158.75, -147.759615, 0), Vector(-158.75, -206.863462, 0)),
    Part.LineSegment(Vector(-158.75, -206.863462, 0), Vector(-152.4, -206.863462, 0)),
    Part.LineSegment(Vector(-152.4, -206.863462, 0), Vector(-152.4, -147.759615, 0)),
    Part.LineSegment(Vector(-25.4, -381, 0), Vector(-69.85, -381, 0)),
    Part.LineSegment(Vector(-69.85, -381, 0), Vector(-69.85, -384.175, 0)),
    Part.LineSegment(Vector(-69.85, -384.175, 0), Vector(-25.4, -384.175, 0)),
    Part.LineSegment(Vector(-25.4, -384.175, 0), Vector(-25.4, -381, 0)),
    Part.LineSegment(Vector(63.5, -381, 0), Vector(19.05, -381, 0)),
    Part.LineSegment(Vector(19.05, -381, 0), Vector(19.05, -384.175, 0)),
    Part.LineSegment(Vector(19.05, -384.175, 0), Vector(63.5, -384.175, 0)),
    Part.LineSegment(Vector(63.5, -384.175, 0), Vector(63.5, -381, 0)),
], False)
sketch4.addConstraint([
    Sketcher.Constraint("Coincident", 0, 2, 1, 1),
    Sketcher.Constraint("Coincident", 1, 2, 2, 1),
    Sketcher.Constraint("Coincident", 2, 2, 3, 1),
    Sketcher.Constraint("Coincident", 3, 2, 0, 1),
    Sketcher.Constraint("Coincident", 4, 2, 5, 1),
    Sketcher.Constraint("Coincident", 5, 2, 6, 1),
    Sketcher.Constraint("Coincident", 6, 2, 7, 1),
    Sketcher.Constraint("Coincident", 7, 2, 4, 1),
    Sketcher.Constraint("Coincident", 8, 2, 9, 1),
    Sketcher.Constraint("Coincident", 9, 2, 10, 1),
    Sketcher.Constraint("Coincident", 10, 2, 11, 1),
    Sketcher.Constraint("Coincident", 11, 2, 8, 1),
    Sketcher.Constraint("Coincident", 12, 2, 13, 1),
    Sketcher.Constraint("Coincident", 13, 2, 14, 1),
    Sketcher.Constraint("Coincident", 14, 2, 15, 1),
    Sketcher.Constraint("Coincident", 15, 2, 12, 1),
    Sketcher.Constraint("Coincident", 16, 2, 17, 1),
    Sketcher.Constraint("Coincident", 17, 2, 18, 1),
    Sketcher.Constraint("Coincident", 18, 2, 19, 1),
    Sketcher.Constraint("Coincident", 19, 2, 16, 1),
    Sketcher.Constraint("Coincident", 20, 2, 21, 1),
    Sketcher.Constraint("Coincident", 21, 2, 22, 1),
    Sketcher.Constraint("Coincident", 22, 2, 23, 1),
    Sketcher.Constraint("Coincident", 23, 2, 20, 1),
    Sketcher.Constraint("Coincident", 24, 2, 25, 1),
    Sketcher.Constraint("Coincident", 25, 2, 26, 1),
    Sketcher.Constraint("Coincident", 26, 2, 27, 1),
    Sketcher.Constraint("Coincident", 27, 2, 24, 1),
    Sketcher.Constraint("Coincident", 28, 2, 29, 1),
    Sketcher.Constraint("Coincident", 29, 2, 30, 1),
    Sketcher.Constraint("Coincident", 30, 2, 31, 1),
    Sketcher.Constraint("Coincident", 31, 2, 28, 1),
    Sketcher.Constraint("Horizontal", 0),
    Sketcher.Constraint("Vertical", 1),
    Sketcher.Constraint("Horizontal", 2),
    Sketcher.Constraint("Vertical", 3),
    Sketcher.Constraint("Horizontal", 4),
    Sketcher.Constraint("Vertical", 5),
    Sketcher.Constraint("Horizontal", 6),
    Sketcher.Constraint("Vertical", 7),
    Sketcher.Constraint("Horizontal", 8),
    Sketcher.Constraint("Vertical", 9),
    Sketcher.Constraint("Horizontal", 10),
    Sketcher.Constraint("Vertical", 11),
    Sketcher.Constraint("Horizontal", 12),
    Sketcher.Constraint("Vertical", 13),
    Sketcher.Constraint("Horizontal", 14),
    Sketcher.Constraint("Vertical", 15),
    Sketcher.Constraint("Horizontal", 16),
    Sketcher.Constraint("Vertical", 17),
    Sketcher.Constraint("Horizontal", 18),
    Sketcher.Constraint("Vertical", 19),
    Sketcher.Constraint("Horizontal", 20),
    Sketcher.Constraint("Vertical", 21),
    Sketcher.Constraint("Horizontal", 22),
    Sketcher.Constraint("Vertical", 23),
    Sketcher.Constraint("Horizontal", 24),
    Sketcher.Constraint("Vertical", 25),
    Sketcher.Constraint("Horizontal", 26),
    Sketcher.Constraint("Vertical", 27),
    Sketcher.Constraint("Horizontal", 28),
    Sketcher.Constraint("Vertical", 29),
    Sketcher.Constraint("Horizontal", 30),
    Sketcher.Constraint("Vertical", 31),
    Sketcher.Constraint("Symmetric", 13, 2, 16, 2, -1),
    Sketcher.Constraint("Symmetric", 15, 2, 18, 2, -1),
    Sketcher.Constraint("Symmetric", 9, 2, 20, 2, -1),
    Sketcher.Constraint("Symmetric", 11, 2, 22, 2, -1),
    Sketcher.Constraint("Symmetric", 5, 2, 24, 2, -1),
    Sketcher.Constraint("Symmetric", 7, 2, 26, 2, -1),
    Sketcher.Constraint("Symmetric", 1, 2, 28, 2, -1),
    Sketcher.Constraint("Symmetric", 3, 2, 30, 2, -1),
    Sketcher.Constraint("Horizontal", 3, 2, 4, 2),
    Sketcher.Constraint("Horizontal", 2, 2, 5, 2),
    Sketcher.Constraint("Vertical", 9, 2, 12, 2),
    Sketcher.Constraint("Vertical", 11, 2, 14, 2),
    Sketcher.Constraint("Equal", 2, 4),
    Sketcher.Constraint("Equal", 11, 13),
    Sketcher.Constraint("DistanceY", -1, 1, 1, 2, Q("15 in")),
    Sketcher.Constraint("DistanceX", 6, 2, -1, 1, Q("1 in")),
    Sketcher.Constraint("DistanceX", 10, 2, -1, 1, Q("6 in")),
    Sketcher.Constraint("DistanceX", 8, 2, 1, 2, Q("7 in")),
    Sketcher.Constraint("DistanceX", 0, 2, 0, 1, Q("1.75 in")),
    Sketcher.Constraint("DistanceX", 8, 2, 8, 1, Q("0.25 in")),
    Sketcher.Constraint("DistanceY", 1, 2, 1, 1, Q("0.125 in")),
    Sketcher.Constraint("DistanceY", 9, 2, 9, 1, Q("59.103846 mm")),
    Sketcher.Constraint("DistanceY", -1, 1, 8, 2, Q("206.863462 mm")),
    Sketcher.Constraint("DistanceY", -1, 1, 12, 2, Q("88.655769 mm")),
])
pocket3 = doc.addObject("PartDesign::Pocket", "Pocket002")
body.addObject(pocket3)
pocket3.Profile = sketch4
pocket3.Length = Q("0.125 in")

doc.recompute()
